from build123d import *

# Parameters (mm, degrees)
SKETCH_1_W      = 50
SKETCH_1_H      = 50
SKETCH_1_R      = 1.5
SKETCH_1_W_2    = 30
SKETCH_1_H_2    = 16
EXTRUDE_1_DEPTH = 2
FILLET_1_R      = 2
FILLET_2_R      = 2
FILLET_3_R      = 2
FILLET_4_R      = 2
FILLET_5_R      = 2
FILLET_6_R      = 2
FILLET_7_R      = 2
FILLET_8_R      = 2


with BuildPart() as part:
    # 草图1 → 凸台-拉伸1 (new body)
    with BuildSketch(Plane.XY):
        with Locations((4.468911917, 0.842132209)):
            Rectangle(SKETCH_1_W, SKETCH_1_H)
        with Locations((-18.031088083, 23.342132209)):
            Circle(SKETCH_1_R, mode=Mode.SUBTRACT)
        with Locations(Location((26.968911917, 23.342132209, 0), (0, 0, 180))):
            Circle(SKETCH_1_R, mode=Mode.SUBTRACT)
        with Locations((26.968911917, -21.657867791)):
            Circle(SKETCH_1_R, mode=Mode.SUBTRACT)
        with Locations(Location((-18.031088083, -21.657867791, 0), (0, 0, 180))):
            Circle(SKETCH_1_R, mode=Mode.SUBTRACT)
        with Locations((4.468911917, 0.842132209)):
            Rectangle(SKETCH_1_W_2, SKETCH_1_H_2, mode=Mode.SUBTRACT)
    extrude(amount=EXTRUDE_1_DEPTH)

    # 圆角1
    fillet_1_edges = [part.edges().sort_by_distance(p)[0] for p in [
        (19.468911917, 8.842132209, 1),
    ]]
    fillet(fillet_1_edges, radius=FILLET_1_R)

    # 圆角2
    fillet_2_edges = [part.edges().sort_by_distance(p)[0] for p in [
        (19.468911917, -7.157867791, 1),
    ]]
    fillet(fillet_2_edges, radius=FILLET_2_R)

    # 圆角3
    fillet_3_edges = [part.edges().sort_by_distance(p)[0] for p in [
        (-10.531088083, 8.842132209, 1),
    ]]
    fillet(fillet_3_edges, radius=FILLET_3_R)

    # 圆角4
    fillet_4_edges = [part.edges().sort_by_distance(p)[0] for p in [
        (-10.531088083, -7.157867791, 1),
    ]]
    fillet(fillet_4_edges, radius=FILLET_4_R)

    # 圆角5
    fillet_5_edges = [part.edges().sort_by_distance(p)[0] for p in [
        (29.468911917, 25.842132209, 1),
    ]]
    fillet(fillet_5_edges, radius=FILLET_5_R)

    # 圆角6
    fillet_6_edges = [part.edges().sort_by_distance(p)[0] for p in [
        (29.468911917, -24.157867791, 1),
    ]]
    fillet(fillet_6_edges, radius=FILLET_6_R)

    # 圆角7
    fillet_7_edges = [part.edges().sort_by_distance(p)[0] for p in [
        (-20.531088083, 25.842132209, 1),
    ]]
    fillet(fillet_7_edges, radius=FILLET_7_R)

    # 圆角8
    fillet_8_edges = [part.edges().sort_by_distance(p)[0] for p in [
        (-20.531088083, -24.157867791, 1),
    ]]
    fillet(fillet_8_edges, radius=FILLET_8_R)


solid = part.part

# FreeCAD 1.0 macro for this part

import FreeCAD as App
import Part
import Sketcher
from FreeCAD import Vector
Q = App.Units.Quantity


def edges_at(feature, points):
    """Names of the edges that pass closest to the given points."""
    edges = feature.Shape.Edges
    near = lambda p: min(range(len(edges)), key=lambda i: edges[i].distToShape(Part.Vertex(*p))[0])
    return sorted({f"Edge{near(p) + 1}" for p in points})


def add_polygon(sketch, points):
    """Adds a closed chain of lines whose ends are joined by coincident constraints."""
    first, n = sketch.GeometryCount, len(points)
    for a, b in zip(points, points[1:] + points[:1]):
        sketch.addGeometry(Part.LineSegment(App.Vector(*a, 0), App.Vector(*b, 0)), False)
    for i in range(n):
        sketch.addConstraint(Sketcher.Constraint("Coincident", first + i, 2, first + (i + 1) % n, 1))

doc = App.newDocument("Part")
body = doc.addObject("PartDesign::Body", "Body")

# Sketch on XY plane
sketch1 = body.newObject("Sketcher::SketchObject", "Sketch")
sketch1.AttachmentSupport = (doc.getObject("XY_Plane"), [""])
sketch1.MapMode = "FlatFace"
add_polygon(sketch1, [(-20.531088, 25.842132), (-20.531088, -24.157868), (29.468912, -24.157868), (29.468912, 25.842132)])  # lines 0-3
sketch1.addGeometry(Part.Circle(Vector(-18.031088, -21.657868, 0), Vector(0, 0, 1), 1.5), False)  # 4
sketch1.addGeometry(Part.Circle(Vector(26.968912, -21.657868, 0), Vector(0, 0, 1), 1.5), False)  # 5
sketch1.addGeometry(Part.Circle(Vector(-18.031088, 23.342132, 0), Vector(0, 0, 1), 1.5), False)  # 6
add_polygon(sketch1, [(19.468912, -7.157868), (-10.531088, -7.157868), (-10.531088, 8.842132), (19.468912, 8.842132)])  # lines 7-10
sketch1.addGeometry(Part.Circle(Vector(26.968912, 23.342132, 0), Vector(0, 0, 1), 1.5), False)  # 11
sketch1.addConstraint([
    Sketcher.Constraint("Vertical", 0),
    Sketcher.Constraint("Horizontal", 1),
    Sketcher.Constraint("Vertical", 2),
    Sketcher.Constraint("Horizontal", 3),
    Sketcher.Constraint("Horizontal", 7),
    Sketcher.Constraint("Vertical", 8),
    Sketcher.Constraint("Horizontal", 9),
    Sketcher.Constraint("Vertical", 10),
    Sketcher.Constraint("Equal", 4, 5),
    Sketcher.Constraint("Equal", 5, 6),
    Sketcher.Constraint("Equal", 6, 11),
    Sketcher.Constraint("Horizontal", 4, 3, 5, 3),
    Sketcher.Constraint("Horizontal", 6, 3, 11, 3),
    Sketcher.Constraint("Vertical", 4, 3, 6, 3),
    Sketcher.Constraint("Vertical", 5, 3, 11, 3),
    Sketcher.Constraint("Equal", 3, 0),
    Sketcher.Constraint("Diameter", 4, Q("3 mm")),
    Sketcher.Constraint("DistanceX", 1, 1, 1, 2, Q("50 mm")),
    Sketcher.Constraint("DistanceX", 7, 2, 7, 1, Q("30 mm")),
    Sketcher.Constraint("DistanceY", 8, 1, 8, 2, Q("16 mm")),
    Sketcher.Constraint("DistanceX", 4, 3, 5, 3, Q("45 mm")),
    Sketcher.Constraint("DistanceY", 4, 3, 6, 3, Q("45 mm")),
    Sketcher.Constraint("DistanceX", 0, 2, 7, 2, Q("10 mm")),
    Sketcher.Constraint("DistanceY", 0, 2, 7, 2, Q("17 mm")),
    Sketcher.Constraint("DistanceX", 0, 2, 4, 3, Q("2.5 mm")),
    Sketcher.Constraint("DistanceY", 0, 2, 4, 3, Q("2.5 mm")),
    Sketcher.Constraint("DistanceX", 4, 3, -1, 1, Q("18.031088 mm")),
    Sketcher.Constraint("DistanceY", 4, 3, -1, 1, Q("21.657868 mm")),
])
pad1 = body.newObject("PartDesign::Pad", "Pad")
pad1.Profile = sketch1
pad1.Length = 2
doc.recompute()

fillet = body.newObject("PartDesign::Fillet", "Fillet")
fillet.Base = (pad1, edges_at(pad1, [(19.469, 8.842, 1)]))
fillet.Radius = 2
doc.recompute()

fillet2 = body.newObject("PartDesign::Fillet", "Fillet001")
fillet2.Base = (fillet, edges_at(fillet, [(19.469, -7.158, 1)]))
fillet2.Radius = 2
doc.recompute()

fillet3 = body.newObject("PartDesign::Fillet", "Fillet002")
fillet3.Base = (fillet2, edges_at(fillet2, [(-10.531, 8.842, 1)]))
fillet3.Radius = 2
doc.recompute()

fillet4 = body.newObject("PartDesign::Fillet", "Fillet003")
fillet4.Base = (fillet3, edges_at(fillet3, [(-10.531, -7.158, 1)]))
fillet4.Radius = 2
doc.recompute()

fillet5 = body.newObject("PartDesign::Fillet", "Fillet004")
fillet5.Base = (fillet4, edges_at(fillet4, [(29.469, 25.842, 1)]))
fillet5.Radius = 2
doc.recompute()

fillet6 = body.newObject("PartDesign::Fillet", "Fillet005")
fillet6.Base = (fillet5, edges_at(fillet5, [(29.469, -24.158, 1)]))
fillet6.Radius = 2
doc.recompute()

fillet7 = body.newObject("PartDesign::Fillet", "Fillet006")
fillet7.Base = (fillet6, edges_at(fillet6, [(-20.531, 25.842, 1)]))
fillet7.Radius = 2
doc.recompute()

fillet8 = body.newObject("PartDesign::Fillet", "Fillet007")
fillet8.Base = (fillet7, edges_at(fillet7, [(-20.531, -24.158, 1)]))
fillet8.Radius = 2

doc.recompute()
